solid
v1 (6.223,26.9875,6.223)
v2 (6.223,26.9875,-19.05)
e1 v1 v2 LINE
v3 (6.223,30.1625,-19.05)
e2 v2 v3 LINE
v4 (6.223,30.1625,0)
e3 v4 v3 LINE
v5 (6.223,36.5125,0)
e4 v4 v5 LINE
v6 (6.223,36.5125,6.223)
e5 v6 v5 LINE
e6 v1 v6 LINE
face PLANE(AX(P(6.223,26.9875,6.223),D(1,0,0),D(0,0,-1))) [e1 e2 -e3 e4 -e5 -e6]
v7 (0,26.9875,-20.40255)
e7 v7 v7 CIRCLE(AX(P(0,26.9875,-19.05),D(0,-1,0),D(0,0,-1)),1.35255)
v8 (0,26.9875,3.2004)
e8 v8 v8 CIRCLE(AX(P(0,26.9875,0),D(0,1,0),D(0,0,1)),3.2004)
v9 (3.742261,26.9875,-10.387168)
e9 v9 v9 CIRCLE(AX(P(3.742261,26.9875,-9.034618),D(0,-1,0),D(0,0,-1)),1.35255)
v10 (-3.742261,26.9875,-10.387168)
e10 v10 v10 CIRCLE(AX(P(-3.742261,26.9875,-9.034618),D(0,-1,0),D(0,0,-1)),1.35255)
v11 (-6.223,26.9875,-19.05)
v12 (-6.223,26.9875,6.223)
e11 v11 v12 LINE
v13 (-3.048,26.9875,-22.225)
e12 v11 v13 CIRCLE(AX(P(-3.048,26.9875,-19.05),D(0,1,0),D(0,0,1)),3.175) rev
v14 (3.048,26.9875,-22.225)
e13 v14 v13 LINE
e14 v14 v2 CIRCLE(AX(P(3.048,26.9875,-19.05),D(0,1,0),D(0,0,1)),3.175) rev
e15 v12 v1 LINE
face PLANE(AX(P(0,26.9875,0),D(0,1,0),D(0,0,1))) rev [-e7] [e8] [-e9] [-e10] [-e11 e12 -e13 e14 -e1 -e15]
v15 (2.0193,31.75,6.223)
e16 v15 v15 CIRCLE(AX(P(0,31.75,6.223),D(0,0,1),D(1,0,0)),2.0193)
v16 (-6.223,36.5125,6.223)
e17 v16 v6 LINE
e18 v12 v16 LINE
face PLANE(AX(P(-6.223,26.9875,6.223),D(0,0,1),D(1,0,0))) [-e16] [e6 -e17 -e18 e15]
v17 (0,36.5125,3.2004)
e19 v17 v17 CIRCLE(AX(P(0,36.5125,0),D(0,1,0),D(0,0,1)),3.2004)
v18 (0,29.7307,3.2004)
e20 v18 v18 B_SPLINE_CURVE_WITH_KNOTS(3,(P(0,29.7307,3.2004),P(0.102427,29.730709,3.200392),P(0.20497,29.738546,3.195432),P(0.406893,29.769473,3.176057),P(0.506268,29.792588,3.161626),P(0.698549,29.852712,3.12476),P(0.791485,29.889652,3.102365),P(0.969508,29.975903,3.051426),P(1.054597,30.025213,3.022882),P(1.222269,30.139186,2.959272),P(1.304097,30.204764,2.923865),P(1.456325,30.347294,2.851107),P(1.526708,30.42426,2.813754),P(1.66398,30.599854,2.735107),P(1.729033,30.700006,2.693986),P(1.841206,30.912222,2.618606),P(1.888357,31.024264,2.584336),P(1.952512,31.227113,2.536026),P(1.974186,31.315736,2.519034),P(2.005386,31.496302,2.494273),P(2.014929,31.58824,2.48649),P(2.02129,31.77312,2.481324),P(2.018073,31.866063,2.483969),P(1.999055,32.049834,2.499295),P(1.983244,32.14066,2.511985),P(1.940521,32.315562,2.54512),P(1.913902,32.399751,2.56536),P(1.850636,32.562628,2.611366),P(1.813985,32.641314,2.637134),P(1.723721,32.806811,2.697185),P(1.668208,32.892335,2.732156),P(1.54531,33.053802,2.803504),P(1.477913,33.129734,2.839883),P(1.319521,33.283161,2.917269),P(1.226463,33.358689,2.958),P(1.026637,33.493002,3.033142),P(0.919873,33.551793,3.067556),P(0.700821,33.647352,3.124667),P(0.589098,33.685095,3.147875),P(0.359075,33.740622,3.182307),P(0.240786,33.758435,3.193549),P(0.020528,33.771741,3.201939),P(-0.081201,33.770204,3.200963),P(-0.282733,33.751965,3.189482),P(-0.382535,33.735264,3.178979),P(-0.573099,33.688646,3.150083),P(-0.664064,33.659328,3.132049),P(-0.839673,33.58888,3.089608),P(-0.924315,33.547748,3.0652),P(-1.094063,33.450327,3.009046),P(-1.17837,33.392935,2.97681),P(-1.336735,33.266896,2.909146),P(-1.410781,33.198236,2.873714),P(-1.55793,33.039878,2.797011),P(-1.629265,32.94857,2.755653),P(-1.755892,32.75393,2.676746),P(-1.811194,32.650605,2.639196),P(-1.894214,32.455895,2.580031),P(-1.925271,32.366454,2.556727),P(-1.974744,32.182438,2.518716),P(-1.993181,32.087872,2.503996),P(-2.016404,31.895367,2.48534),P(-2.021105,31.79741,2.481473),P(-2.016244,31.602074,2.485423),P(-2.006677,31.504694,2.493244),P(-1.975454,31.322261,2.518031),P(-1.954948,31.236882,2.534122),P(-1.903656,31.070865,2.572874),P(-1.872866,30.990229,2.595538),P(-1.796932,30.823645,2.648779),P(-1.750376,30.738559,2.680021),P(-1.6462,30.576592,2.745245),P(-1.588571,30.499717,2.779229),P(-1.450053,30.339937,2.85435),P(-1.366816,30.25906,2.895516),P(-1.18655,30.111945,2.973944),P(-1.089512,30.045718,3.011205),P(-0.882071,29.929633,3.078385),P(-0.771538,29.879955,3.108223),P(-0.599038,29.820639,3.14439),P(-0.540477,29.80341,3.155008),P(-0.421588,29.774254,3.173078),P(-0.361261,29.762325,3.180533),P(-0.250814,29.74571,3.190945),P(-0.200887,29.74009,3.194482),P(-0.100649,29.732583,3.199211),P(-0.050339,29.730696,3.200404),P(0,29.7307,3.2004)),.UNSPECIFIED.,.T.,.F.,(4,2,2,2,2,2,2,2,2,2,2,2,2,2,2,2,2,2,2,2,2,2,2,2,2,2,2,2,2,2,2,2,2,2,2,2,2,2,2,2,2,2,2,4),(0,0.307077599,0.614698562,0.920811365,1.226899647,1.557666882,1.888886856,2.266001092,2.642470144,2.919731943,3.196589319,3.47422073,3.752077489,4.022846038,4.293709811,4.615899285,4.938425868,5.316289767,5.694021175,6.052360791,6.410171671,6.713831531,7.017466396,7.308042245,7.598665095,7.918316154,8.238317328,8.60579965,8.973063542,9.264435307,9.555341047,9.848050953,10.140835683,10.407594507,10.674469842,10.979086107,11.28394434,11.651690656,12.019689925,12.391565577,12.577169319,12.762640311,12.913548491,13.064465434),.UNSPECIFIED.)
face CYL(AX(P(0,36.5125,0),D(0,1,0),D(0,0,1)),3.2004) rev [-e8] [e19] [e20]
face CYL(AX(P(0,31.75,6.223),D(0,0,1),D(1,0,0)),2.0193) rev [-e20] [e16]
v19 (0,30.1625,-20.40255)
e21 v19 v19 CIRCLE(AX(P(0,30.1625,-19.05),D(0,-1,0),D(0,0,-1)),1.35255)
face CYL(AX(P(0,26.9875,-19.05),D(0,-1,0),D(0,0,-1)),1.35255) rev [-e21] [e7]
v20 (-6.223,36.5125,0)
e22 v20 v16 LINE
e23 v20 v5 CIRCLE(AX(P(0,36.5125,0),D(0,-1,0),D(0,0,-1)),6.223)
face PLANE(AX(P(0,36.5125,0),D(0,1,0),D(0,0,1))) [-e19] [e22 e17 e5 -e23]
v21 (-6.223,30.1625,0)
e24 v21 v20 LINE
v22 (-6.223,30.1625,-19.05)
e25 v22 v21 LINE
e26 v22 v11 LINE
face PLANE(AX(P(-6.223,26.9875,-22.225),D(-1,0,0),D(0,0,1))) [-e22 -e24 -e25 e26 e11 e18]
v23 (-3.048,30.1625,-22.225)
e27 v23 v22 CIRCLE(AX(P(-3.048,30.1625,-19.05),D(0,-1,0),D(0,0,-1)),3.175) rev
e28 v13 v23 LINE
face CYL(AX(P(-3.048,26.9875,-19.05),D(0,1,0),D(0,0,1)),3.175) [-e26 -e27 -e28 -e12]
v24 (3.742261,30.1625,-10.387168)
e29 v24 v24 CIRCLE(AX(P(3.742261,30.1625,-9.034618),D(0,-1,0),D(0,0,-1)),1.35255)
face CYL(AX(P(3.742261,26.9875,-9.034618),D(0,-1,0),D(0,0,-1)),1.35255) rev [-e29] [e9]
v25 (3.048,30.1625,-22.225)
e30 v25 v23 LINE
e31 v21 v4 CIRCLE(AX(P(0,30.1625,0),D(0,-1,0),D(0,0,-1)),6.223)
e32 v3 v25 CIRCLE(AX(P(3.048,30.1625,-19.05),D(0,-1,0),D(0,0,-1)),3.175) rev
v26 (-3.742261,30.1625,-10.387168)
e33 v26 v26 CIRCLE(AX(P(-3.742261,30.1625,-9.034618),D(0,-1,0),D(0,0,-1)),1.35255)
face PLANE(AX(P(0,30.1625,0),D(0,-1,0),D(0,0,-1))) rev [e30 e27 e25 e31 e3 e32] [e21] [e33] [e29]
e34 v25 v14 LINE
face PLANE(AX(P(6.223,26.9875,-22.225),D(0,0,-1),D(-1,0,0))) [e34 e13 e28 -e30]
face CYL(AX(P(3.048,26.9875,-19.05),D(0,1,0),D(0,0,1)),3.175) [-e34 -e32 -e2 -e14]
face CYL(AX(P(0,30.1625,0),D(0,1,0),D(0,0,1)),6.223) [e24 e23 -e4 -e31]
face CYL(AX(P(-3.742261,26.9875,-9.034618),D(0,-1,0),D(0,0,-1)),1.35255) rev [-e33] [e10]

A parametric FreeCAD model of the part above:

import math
import FreeCAD as App
import Part
import Sketcher
Q = App.Units.Quantity


def edges_at(feature, points):
    """Names of the edges that pass closest to the given points."""
    edges = feature.Shape.Edges
    near = lambda p: min(range(len(edges)), key=lambda i: edges[i].distToShape(Part.Vertex(*p))[0])
    return sorted({f"Edge{near(p) + 1}" for p in points})

doc = App.newDocument("Part")
body = doc.addObject("PartDesign::Body", "Body")

# Sketch on XZ plane
sketch1 = body.newObject("Sketcher::SketchObject", "Sketch")
sketch1.AttachmentSupport = (doc.getObject("XZ_Plane"), [""])
sketch1.MapMode = "FlatFace"
sketch1.AttachmentOffset = App.Placement(App.Vector(0, 0, -1.4375 * 25.4), App.Rotation())
sketch1.addGeometry([
    Part.LineSegment(App.Vector(-6, -22, 0), App.Vector(-6, 6, 0)),
    Part.LineSegment(App.Vector(-6, 6, 0), App.Vector(6, 6, 0)),
    Part.LineSegment(App.Vector(6, 6, 0), App.Vector(6, -22, 0)),
    Part.LineSegment(App.Vector(6, -22, 0), App.Vector(-6, -22, 0)),
], False)
sketch1.addConstraint([
    Sketcher.Constraint("Coincident", 0, 2, 1, 1),
    Sketcher.Constraint("Coincident", 1, 2, 2, 1),
    Sketcher.Constraint("Coincident", 2, 2, 3, 1),
    Sketcher.Constraint("Coincident", 3, 2, 0, 1),
    Sketcher.Constraint("Vertical", 0),
    Sketcher.Constraint("Horizontal", 1),
    Sketcher.Constraint("Vertical", 2),
    Sketcher.Constraint("Horizontal", 3),
    Sketcher.Constraint("DistanceX", 1, 1, 1, 2, Q("0.49 in")),
    Sketcher.Constraint("DistanceY", 0, 1, 0, 2, Q("1.12 in")),
    Sketcher.Constraint("DistanceX", 0, 2, -1, 1, Q("0.245 in")),
    Sketcher.Constraint("DistanceY", -1, 1, 0, 2, Q("0.245 in")),
])
pad1 = body.newObject("PartDesign::Pad", "Pad")
pad1.Profile = sketch1
pad1.Length = Q("0.375 in")

# Sketch on XZ plane
sketch2 = body.newObject("Sketcher::SketchObject", "Sketch001")
sketch2.AttachmentSupport = (doc.getObject("XZ_Plane"), [""])
sketch2.MapMode = "FlatFace"
sketch2.AttachmentOffset = App.Placement(App.Vector(0, 0, -1.4375 * 25.4), App.Rotation())
sketch2.addGeometry([
    Part.LineSegment(App.Vector(-6, -22, 0), App.Vector(-6, 0, 0)),
    Part.ArcOfCircle(Part.Circle(App.Vector(0, 0, 0), App.Vector(0, 0, 1), 6), math.radians(180), math.radians(360)),
    Part.LineSegment(App.Vector(6, 0, 0), App.Vector(6, -22, 0)),
    Part.LineSegment(App.Vector(6, -22, 0), App.Vector(-6, -22, 0)),
], False)
sketch2.addConstraint([
    Sketcher.Constraint("Tangent", 0, 2, 1, 1),
    Sketcher.Constraint("Tangent", 1, 2, 2, 1),
    Sketcher.Constraint("Coincident", 2, 2, 3, 1),
    Sketcher.Constraint("Coincident", 3, 2, 0, 1),
    Sketcher.Constraint("Vertical", 0),
    Sketcher.Constraint("Vertical", 2),
    Sketcher.Constraint("Horizontal", 3),
    Sketcher.Constraint("Coincident", 1, 3, -1, 1),
    Sketcher.Constraint("Radius", 1, Q("0.245 in")),
    Sketcher.Constraint("DistanceY", 0, 1, 0, 2, Q("0.875 in")),
])
pocket1 = body.newObject("PartDesign::Pocket", "Pocket")
pocket1.Profile = sketch2
pocket1.Length = Q("0.25 in")
pocket1.Reversed = True

# Sketch on XZ plane
sketch3 = body.newObject("Sketcher::SketchObject", "Sketch002")
sketch3.AttachmentSupport = (doc.getObject("XZ_Plane"), [""])
sketch3.MapMode = "FlatFace"
sketch3.AttachmentOffset = App.Placement(App.Vector(0, 0, -1.0625 * 25.4), App.Rotation())
sketch3.addGeometry([
    Part.Circle(App.Vector(3.7, -9, 0), App.Vector(0, 0, 1), 1.4),
    Part.Circle(App.Vector(-3.7, -9, 0), App.Vector(0, 0, 1), 1.4),
    Part.Circle(App.Vector(0, -19.1, 0), App.Vector(0, 0, 1), 1.4),
], False)
sketch3.addConstraint([
    Sketcher.Constraint("Equal", 0, 1),
    Sketcher.Constraint("Equal", 1, 2),
    Sketcher.Constraint("Symmetric", 0, 3, 1, 3, -2),
    Sketcher.Constraint("PointOnObject", 2, 3, -2),
    Sketcher.Constraint("Diameter", 0, Q("0.1065 in")),
    Sketcher.Constraint("DistanceY", 2, 3, -1, 1, Q("0.75 in")),
    Sketcher.Constraint("DistanceX", -1, 1, 0, 3, Q("3.742261 mm")),
    Sketcher.Constraint("DistanceY", 0, 3, -1, 1, Q("9.034618 mm")),
])
doc.recompute()
hole = body.newObject("PartDesign::Hole", "Hole")
hole.Profile = sketch3
hole.ThreadType = "None"
hole.Diameter = Q("0.1065 in")
hole.DepthType = "Dimension"
hole.Depth = Q("0.375 in")
hole.DrillPoint = "Flat"

# Sketch on XZ plane
sketch4 = body.newObject("Sketcher::SketchObject", "Sketch003")
sketch4.AttachmentSupport = (doc.getObject("XZ_Plane"), [""])
sketch4.MapMode = "FlatFace"
sketch4.AttachmentOffset = App.Placement(App.Vector(0, 0, -1.4375 * 25.4), App.Rotation())
sketch4.addGeometry(Part.Circle(App.Vector(0, 0, 0), App.Vector(0, 0, 1), 3.2), False)
sketch4.addConstraint([
    Sketcher.Constraint("Coincident", 0, 3, -1, 1),
    Sketcher.Constraint("Diameter", 0, Q("0.252 in")),
])
doc.recompute()
hole2 = body.newObject("PartDesign::Hole", "Hole001")
hole2.Profile = sketch4
hole2.ThreadType = "None"
hole2.Diameter = Q("0.252 in")
hole2.DepthType = "ThroughAll"
hole2.Reversed = True

# Sketch on XY plane
sketch5 = body.newObject("Sketcher::SketchObject", "Sketch004")
sketch5.AttachmentSupport = (doc.getObject("XY_Plane"), [""])
sketch5.MapMode = "FlatFace"
sketch5.AttachmentOffset = App.Placement(App.Vector(0, 0, 0.245 * 25.4), App.Rotation())
sketch5.addGeometry(Part.Circle(App.Vector(0, 31.8, 0), App.Vector(0, 0, 1), 2), False)
sketch5.addConstraint([
    Sketcher.Constraint("PointOnObject", 0, 3, -2),
    Sketcher.Constraint("Diameter", 0, Q("0.159 in")),
    Sketcher.Constraint("DistanceY", -1, 1, 0, 3, Q("1.25 in")),
])
pocket2 = body.newObject("PartDesign::Pocket", "Pocket001")
pocket2.Profile = sketch5
pocket2.Type = "UpToFirst"
doc.recompute()

fillet = body.newObject("PartDesign::Fillet", "Fillet")
fillet.Base = (pocket2, edges_at(pocket2, [(-6.223, 28.575, -22.225), (6.223, 28.575, -22.225)]))
fillet.Radius = Q("0.125 in")

doc.recompute()
